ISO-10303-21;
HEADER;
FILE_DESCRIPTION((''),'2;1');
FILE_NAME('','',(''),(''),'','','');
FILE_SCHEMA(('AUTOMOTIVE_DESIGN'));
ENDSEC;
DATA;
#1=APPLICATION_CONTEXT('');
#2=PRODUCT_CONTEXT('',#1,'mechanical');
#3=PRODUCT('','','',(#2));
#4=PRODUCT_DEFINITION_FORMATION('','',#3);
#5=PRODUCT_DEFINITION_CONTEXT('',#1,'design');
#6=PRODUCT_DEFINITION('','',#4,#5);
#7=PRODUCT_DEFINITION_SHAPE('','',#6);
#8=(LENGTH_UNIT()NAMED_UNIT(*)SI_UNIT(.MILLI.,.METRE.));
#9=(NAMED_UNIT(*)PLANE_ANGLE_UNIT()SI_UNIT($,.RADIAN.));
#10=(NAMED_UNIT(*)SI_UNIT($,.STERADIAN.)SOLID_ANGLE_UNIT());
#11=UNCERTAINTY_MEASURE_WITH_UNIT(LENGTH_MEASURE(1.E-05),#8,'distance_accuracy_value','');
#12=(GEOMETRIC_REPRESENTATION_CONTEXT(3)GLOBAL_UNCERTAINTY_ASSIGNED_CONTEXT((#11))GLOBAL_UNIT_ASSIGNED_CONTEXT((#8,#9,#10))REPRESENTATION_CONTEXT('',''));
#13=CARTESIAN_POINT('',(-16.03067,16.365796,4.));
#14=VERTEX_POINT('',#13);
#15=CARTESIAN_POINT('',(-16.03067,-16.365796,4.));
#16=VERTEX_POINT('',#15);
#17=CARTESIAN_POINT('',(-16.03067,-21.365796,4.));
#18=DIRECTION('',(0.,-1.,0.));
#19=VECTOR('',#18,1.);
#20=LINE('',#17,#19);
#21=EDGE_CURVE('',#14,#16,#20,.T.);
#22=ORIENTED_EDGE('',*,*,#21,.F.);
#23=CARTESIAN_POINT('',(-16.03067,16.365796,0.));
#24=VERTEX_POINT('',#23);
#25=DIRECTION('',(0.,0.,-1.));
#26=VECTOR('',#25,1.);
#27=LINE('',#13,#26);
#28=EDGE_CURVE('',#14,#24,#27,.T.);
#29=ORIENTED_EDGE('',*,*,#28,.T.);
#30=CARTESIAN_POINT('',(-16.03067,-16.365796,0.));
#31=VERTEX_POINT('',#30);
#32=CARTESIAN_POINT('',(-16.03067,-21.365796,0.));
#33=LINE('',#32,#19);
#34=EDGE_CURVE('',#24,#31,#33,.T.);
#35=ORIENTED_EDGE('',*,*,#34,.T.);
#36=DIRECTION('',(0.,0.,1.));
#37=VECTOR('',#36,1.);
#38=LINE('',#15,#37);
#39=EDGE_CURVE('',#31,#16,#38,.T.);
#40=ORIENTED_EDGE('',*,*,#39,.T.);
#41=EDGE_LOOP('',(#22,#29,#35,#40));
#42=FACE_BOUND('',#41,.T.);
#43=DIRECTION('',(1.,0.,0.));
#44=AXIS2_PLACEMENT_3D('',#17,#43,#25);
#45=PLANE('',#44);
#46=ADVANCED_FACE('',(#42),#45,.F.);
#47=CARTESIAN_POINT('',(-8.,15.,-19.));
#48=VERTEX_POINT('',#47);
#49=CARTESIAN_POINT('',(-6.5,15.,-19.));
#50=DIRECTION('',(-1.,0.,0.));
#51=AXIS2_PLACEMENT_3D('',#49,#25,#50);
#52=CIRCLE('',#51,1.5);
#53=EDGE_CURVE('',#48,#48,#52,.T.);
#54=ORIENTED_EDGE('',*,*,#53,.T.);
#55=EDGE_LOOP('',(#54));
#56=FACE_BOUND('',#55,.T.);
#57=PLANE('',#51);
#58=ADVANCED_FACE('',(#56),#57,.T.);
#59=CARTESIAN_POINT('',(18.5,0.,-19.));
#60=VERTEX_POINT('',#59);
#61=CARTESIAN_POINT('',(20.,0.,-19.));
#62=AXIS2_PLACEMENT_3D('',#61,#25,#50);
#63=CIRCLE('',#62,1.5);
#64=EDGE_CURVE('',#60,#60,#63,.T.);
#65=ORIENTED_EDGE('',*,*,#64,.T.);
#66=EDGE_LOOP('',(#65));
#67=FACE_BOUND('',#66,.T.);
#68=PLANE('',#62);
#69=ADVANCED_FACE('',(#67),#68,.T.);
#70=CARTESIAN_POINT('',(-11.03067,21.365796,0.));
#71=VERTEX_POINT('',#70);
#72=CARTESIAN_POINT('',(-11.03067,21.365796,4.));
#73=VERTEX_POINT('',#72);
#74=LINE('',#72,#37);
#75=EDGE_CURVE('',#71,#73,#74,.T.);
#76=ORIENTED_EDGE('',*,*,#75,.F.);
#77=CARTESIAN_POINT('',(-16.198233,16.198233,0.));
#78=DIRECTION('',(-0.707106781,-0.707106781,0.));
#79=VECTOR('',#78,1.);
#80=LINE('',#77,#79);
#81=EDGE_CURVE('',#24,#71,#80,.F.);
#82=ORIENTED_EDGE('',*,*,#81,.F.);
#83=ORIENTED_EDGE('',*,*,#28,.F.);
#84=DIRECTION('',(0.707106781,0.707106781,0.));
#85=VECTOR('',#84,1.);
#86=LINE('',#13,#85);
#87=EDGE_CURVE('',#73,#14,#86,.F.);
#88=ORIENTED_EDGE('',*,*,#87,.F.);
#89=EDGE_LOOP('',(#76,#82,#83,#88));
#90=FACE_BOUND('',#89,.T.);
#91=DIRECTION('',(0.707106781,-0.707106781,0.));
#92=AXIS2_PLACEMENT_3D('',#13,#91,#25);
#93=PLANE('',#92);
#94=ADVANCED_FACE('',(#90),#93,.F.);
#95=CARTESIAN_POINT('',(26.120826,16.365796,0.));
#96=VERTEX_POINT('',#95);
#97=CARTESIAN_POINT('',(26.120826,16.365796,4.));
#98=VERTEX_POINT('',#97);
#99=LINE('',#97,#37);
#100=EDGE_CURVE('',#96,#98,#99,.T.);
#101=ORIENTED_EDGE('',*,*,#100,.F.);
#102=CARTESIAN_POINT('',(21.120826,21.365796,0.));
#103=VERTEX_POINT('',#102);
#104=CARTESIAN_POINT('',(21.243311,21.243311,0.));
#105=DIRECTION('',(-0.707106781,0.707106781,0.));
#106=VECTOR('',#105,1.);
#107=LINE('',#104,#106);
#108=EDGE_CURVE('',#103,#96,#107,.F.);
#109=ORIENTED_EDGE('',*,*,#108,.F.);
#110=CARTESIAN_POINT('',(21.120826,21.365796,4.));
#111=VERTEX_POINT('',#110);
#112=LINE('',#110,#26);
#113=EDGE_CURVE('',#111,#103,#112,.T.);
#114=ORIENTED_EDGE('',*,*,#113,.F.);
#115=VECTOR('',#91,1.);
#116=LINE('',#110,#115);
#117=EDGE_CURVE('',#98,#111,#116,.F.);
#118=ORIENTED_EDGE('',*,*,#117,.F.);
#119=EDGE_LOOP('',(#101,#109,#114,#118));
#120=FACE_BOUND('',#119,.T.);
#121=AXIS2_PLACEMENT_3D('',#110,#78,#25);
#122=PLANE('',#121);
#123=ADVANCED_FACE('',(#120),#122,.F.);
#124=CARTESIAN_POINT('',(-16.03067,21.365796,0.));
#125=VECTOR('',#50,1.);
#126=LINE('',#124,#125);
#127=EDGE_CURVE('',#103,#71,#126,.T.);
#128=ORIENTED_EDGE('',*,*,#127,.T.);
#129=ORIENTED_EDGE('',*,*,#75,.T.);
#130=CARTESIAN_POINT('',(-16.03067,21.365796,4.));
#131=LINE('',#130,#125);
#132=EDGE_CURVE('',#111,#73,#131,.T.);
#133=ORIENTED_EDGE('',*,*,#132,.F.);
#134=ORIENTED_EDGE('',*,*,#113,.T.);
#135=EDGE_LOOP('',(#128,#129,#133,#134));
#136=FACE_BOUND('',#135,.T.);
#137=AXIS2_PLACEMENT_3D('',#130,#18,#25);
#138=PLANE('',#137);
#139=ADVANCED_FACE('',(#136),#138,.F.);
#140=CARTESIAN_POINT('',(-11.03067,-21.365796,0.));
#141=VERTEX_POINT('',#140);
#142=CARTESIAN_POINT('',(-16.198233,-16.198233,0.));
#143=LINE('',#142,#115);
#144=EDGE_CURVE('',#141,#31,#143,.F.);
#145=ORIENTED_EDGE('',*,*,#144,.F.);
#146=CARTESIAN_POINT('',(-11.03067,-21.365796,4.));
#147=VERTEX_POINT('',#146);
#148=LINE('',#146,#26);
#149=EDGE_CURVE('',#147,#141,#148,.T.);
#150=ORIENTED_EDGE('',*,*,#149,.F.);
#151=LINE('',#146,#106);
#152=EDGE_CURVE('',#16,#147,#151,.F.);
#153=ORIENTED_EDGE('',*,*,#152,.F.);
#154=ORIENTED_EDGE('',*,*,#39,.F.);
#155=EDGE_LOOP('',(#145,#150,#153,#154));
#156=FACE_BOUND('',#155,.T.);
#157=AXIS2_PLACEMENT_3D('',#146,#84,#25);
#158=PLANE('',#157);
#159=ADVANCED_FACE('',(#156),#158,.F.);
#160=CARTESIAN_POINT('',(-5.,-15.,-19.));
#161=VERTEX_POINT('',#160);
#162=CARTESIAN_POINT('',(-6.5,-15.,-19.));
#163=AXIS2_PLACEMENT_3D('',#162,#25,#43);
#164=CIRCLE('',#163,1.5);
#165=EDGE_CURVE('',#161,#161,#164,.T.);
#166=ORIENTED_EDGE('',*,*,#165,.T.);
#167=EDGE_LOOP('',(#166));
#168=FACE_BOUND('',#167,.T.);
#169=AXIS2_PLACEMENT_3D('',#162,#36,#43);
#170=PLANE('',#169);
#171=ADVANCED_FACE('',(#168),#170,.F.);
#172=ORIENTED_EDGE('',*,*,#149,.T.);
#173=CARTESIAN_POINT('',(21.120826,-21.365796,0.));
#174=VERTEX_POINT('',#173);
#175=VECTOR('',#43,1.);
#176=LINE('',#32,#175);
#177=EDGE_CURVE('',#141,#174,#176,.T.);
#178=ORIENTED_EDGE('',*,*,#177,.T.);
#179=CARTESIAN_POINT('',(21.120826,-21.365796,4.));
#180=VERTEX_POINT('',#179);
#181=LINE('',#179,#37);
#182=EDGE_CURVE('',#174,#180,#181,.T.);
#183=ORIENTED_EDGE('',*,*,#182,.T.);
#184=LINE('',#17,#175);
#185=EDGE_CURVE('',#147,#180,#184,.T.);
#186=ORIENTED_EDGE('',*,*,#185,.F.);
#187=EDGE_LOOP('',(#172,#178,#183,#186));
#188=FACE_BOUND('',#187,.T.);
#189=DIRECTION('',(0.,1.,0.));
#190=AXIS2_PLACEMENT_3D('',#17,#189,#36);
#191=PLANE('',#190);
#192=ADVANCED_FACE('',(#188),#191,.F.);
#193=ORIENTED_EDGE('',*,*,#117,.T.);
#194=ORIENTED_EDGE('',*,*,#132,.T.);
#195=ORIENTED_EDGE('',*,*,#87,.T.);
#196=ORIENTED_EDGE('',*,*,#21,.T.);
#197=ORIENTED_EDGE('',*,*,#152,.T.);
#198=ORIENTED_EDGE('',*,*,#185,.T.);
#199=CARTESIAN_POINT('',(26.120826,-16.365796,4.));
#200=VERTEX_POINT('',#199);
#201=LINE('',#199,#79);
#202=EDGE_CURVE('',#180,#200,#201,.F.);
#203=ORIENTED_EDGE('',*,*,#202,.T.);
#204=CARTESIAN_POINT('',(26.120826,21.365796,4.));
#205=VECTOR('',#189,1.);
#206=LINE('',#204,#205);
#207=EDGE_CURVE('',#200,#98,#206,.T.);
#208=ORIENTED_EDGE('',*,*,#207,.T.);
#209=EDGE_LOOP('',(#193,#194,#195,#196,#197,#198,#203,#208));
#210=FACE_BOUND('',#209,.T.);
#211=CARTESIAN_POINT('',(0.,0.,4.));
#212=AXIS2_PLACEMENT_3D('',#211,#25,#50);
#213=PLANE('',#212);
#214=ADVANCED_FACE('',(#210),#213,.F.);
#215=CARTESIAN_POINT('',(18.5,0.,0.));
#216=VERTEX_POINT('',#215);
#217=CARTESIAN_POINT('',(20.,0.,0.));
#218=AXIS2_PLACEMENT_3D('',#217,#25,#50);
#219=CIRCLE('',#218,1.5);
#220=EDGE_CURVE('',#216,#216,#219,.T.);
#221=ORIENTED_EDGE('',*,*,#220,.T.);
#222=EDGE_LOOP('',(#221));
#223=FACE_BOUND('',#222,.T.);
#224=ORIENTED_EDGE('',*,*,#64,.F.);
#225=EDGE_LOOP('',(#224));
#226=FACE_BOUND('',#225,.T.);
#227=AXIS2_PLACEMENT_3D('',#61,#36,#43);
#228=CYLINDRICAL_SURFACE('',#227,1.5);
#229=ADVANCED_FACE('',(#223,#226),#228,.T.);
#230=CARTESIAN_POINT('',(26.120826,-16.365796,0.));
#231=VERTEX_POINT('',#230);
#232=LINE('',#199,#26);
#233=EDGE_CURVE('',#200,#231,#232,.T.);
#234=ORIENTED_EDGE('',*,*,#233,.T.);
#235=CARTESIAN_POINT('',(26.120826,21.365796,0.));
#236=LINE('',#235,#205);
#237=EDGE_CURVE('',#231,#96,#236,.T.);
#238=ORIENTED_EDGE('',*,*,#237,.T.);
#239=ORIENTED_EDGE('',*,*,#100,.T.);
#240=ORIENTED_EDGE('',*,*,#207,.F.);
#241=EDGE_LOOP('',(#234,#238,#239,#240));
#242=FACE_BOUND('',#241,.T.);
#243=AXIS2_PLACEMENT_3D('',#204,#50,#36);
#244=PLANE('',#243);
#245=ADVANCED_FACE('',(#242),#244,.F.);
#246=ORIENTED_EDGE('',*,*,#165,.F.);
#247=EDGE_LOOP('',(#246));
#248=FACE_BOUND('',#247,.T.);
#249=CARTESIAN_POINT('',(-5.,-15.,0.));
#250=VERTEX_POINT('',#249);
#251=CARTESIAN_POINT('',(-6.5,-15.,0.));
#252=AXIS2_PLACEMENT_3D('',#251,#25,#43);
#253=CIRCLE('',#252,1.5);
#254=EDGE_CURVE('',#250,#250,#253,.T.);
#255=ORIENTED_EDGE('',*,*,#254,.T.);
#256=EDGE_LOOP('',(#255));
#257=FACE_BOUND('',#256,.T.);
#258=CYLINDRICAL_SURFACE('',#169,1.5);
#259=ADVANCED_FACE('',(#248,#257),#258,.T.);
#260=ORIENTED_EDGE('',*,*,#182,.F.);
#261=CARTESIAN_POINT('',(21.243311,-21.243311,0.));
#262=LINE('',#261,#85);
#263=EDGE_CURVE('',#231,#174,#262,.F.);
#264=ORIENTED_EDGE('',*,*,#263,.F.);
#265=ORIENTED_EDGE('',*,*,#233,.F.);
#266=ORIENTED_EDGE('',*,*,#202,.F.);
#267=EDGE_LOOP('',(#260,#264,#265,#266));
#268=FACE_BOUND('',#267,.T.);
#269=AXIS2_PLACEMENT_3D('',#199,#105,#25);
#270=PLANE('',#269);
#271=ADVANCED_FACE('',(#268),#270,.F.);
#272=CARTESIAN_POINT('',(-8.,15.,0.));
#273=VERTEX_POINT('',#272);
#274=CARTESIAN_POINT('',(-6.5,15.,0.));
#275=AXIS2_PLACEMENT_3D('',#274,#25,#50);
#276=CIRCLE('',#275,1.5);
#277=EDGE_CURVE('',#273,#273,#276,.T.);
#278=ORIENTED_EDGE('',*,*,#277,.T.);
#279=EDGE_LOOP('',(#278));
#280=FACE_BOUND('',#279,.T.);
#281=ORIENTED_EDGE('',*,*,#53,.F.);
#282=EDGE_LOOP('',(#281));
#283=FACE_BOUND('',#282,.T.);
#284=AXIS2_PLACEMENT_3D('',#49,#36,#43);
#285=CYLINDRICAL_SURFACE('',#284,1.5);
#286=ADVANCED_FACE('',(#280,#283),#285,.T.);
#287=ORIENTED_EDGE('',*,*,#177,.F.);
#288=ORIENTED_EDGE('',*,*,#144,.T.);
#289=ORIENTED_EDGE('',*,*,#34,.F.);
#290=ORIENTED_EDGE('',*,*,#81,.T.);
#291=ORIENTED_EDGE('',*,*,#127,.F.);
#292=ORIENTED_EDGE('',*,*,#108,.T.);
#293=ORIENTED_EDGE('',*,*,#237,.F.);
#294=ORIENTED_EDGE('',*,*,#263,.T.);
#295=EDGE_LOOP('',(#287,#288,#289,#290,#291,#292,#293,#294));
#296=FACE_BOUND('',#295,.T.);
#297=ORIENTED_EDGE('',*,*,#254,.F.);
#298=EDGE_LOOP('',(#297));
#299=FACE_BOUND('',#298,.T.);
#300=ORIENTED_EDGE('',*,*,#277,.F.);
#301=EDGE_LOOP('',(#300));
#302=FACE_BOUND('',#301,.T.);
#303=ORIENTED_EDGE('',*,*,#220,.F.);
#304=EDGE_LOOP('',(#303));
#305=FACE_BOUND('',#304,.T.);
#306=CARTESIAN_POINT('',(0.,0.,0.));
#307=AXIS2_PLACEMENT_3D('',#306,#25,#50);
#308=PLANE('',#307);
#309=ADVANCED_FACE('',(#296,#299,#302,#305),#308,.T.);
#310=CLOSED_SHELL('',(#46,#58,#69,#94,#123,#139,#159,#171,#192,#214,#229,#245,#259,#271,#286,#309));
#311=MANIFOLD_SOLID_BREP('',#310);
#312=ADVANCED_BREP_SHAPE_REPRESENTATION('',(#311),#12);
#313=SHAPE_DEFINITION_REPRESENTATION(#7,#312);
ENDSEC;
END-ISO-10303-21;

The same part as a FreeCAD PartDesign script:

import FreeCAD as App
import Part
import Sketcher
from FreeCAD import Vector


def edges_at(feature, points):
    """Names of the edges that pass closest to the given points."""
    edges = feature.Shape.Edges
    near = lambda p: min(range(len(edges)), key=lambda i: edges[i].distToShape(Part.Vertex(*p))[0])
    return sorted({f"Edge{near(p) + 1}" for p in points})

doc = App.newDocument("Part")
body = doc.addObject("PartDesign::Body", "Body")

sketch1 = body.newObject("Sketcher::SketchObject", "Sketch")
sketch1.AttachmentSupport = (doc.getObject("XY_Plane"), [""])
sketch1.MapMode = "FlatFace"
sketch1.addGeometry([
    Part.LineSegment(Vector(-16, 21, 0), Vector(-16, -21, 0)),
    Part.LineSegment(Vector(-16, -21, 0), Vector(26, -21, 0)),
    Part.LineSegment(Vector(26, -21, 0), Vector(26, 21, 0)),
    Part.LineSegment(Vector(26, 21, 0), Vector(-16, 21, 0)),
], False)
sketch1.addConstraint([
    Sketcher.Constraint("Coincident", 0, 2, 1, 1),
    Sketcher.Constraint("Coincident", 1, 2, 2, 1),
    Sketcher.Constraint("Coincident", 2, 2, 3, 1),
    Sketcher.Constraint("Coincident", 3, 2, 0, 1),
    Sketcher.Constraint("Vertical", 0),
    Sketcher.Constraint("Horizontal", 1),
    Sketcher.Constraint("Vertical", 2),
    Sketcher.Constraint("Horizontal", 3),
    Sketcher.Constraint("DistanceY", 0, 2, 0, 1, 42.731592),
    Sketcher.Constraint("DistanceX", 1, 1, 1, 2, 42.151497),
    Sketcher.Constraint("DistanceX", 0, 2, -1, 1, 16.03067),
    Sketcher.Constraint("DistanceY", 0, 2, -1, 1, 21.365796),
])
pad1 = body.newObject("PartDesign::Pad", "Pad")
pad1.Profile = sketch1
pad1.Length = 4
doc.recompute()

chamfer = body.newObject("PartDesign::Chamfer", "Chamfer")
chamfer.Base = (pad1, edges_at(pad1, [
    (-16.031, -21.366, 2),
    (-16.031, 21.366, 2),
    (26.121, 21.366, 2),
    (26.121, -21.366, 2),
]))
chamfer.Size = 5

sketch2 = body.newObject("Sketcher::SketchObject", "Sketch001")
sketch2.AttachmentSupport = (doc.getObject("XY_Plane"), [""])
sketch2.MapMode = "FlatFace"
sketch2.addGeometry([
    Part.Circle(Vector(20, 0, 0), Vector(0, 0, 1), 1.5),
    Part.Circle(Vector(-6.5, 15, 0), Vector(0, 0, 1), 1.5),
    Part.Circle(Vector(-6.5, -15, 0), Vector(0, 0, 1), 1.5),
], False)
sketch2.addConstraint([
    Sketcher.Constraint("Equal", 0, 1),
    Sketcher.Constraint("Equal", 1, 2),
    Sketcher.Constraint("Symmetric", 1, 3, 2, 3, -1),
    Sketcher.Constraint("PointOnObject", 0, 3, -1),
    Sketcher.Constraint("Diameter", 0, 3.0),
    Sketcher.Constraint("DistanceX", -1, 1, 0, 3, 20.0),
    Sketcher.Constraint("DistanceY", -1, 1, 1, 3, 15.0),
    Sketcher.Constraint("DistanceX", 1, 3, -1, 1, 6.5),
])
pad2 = body.newObject("PartDesign::Pad", "Pad001")
pad2.Profile = sketch2
pad2.Length = 19
pad2.Reversed = True

doc.recompute()
